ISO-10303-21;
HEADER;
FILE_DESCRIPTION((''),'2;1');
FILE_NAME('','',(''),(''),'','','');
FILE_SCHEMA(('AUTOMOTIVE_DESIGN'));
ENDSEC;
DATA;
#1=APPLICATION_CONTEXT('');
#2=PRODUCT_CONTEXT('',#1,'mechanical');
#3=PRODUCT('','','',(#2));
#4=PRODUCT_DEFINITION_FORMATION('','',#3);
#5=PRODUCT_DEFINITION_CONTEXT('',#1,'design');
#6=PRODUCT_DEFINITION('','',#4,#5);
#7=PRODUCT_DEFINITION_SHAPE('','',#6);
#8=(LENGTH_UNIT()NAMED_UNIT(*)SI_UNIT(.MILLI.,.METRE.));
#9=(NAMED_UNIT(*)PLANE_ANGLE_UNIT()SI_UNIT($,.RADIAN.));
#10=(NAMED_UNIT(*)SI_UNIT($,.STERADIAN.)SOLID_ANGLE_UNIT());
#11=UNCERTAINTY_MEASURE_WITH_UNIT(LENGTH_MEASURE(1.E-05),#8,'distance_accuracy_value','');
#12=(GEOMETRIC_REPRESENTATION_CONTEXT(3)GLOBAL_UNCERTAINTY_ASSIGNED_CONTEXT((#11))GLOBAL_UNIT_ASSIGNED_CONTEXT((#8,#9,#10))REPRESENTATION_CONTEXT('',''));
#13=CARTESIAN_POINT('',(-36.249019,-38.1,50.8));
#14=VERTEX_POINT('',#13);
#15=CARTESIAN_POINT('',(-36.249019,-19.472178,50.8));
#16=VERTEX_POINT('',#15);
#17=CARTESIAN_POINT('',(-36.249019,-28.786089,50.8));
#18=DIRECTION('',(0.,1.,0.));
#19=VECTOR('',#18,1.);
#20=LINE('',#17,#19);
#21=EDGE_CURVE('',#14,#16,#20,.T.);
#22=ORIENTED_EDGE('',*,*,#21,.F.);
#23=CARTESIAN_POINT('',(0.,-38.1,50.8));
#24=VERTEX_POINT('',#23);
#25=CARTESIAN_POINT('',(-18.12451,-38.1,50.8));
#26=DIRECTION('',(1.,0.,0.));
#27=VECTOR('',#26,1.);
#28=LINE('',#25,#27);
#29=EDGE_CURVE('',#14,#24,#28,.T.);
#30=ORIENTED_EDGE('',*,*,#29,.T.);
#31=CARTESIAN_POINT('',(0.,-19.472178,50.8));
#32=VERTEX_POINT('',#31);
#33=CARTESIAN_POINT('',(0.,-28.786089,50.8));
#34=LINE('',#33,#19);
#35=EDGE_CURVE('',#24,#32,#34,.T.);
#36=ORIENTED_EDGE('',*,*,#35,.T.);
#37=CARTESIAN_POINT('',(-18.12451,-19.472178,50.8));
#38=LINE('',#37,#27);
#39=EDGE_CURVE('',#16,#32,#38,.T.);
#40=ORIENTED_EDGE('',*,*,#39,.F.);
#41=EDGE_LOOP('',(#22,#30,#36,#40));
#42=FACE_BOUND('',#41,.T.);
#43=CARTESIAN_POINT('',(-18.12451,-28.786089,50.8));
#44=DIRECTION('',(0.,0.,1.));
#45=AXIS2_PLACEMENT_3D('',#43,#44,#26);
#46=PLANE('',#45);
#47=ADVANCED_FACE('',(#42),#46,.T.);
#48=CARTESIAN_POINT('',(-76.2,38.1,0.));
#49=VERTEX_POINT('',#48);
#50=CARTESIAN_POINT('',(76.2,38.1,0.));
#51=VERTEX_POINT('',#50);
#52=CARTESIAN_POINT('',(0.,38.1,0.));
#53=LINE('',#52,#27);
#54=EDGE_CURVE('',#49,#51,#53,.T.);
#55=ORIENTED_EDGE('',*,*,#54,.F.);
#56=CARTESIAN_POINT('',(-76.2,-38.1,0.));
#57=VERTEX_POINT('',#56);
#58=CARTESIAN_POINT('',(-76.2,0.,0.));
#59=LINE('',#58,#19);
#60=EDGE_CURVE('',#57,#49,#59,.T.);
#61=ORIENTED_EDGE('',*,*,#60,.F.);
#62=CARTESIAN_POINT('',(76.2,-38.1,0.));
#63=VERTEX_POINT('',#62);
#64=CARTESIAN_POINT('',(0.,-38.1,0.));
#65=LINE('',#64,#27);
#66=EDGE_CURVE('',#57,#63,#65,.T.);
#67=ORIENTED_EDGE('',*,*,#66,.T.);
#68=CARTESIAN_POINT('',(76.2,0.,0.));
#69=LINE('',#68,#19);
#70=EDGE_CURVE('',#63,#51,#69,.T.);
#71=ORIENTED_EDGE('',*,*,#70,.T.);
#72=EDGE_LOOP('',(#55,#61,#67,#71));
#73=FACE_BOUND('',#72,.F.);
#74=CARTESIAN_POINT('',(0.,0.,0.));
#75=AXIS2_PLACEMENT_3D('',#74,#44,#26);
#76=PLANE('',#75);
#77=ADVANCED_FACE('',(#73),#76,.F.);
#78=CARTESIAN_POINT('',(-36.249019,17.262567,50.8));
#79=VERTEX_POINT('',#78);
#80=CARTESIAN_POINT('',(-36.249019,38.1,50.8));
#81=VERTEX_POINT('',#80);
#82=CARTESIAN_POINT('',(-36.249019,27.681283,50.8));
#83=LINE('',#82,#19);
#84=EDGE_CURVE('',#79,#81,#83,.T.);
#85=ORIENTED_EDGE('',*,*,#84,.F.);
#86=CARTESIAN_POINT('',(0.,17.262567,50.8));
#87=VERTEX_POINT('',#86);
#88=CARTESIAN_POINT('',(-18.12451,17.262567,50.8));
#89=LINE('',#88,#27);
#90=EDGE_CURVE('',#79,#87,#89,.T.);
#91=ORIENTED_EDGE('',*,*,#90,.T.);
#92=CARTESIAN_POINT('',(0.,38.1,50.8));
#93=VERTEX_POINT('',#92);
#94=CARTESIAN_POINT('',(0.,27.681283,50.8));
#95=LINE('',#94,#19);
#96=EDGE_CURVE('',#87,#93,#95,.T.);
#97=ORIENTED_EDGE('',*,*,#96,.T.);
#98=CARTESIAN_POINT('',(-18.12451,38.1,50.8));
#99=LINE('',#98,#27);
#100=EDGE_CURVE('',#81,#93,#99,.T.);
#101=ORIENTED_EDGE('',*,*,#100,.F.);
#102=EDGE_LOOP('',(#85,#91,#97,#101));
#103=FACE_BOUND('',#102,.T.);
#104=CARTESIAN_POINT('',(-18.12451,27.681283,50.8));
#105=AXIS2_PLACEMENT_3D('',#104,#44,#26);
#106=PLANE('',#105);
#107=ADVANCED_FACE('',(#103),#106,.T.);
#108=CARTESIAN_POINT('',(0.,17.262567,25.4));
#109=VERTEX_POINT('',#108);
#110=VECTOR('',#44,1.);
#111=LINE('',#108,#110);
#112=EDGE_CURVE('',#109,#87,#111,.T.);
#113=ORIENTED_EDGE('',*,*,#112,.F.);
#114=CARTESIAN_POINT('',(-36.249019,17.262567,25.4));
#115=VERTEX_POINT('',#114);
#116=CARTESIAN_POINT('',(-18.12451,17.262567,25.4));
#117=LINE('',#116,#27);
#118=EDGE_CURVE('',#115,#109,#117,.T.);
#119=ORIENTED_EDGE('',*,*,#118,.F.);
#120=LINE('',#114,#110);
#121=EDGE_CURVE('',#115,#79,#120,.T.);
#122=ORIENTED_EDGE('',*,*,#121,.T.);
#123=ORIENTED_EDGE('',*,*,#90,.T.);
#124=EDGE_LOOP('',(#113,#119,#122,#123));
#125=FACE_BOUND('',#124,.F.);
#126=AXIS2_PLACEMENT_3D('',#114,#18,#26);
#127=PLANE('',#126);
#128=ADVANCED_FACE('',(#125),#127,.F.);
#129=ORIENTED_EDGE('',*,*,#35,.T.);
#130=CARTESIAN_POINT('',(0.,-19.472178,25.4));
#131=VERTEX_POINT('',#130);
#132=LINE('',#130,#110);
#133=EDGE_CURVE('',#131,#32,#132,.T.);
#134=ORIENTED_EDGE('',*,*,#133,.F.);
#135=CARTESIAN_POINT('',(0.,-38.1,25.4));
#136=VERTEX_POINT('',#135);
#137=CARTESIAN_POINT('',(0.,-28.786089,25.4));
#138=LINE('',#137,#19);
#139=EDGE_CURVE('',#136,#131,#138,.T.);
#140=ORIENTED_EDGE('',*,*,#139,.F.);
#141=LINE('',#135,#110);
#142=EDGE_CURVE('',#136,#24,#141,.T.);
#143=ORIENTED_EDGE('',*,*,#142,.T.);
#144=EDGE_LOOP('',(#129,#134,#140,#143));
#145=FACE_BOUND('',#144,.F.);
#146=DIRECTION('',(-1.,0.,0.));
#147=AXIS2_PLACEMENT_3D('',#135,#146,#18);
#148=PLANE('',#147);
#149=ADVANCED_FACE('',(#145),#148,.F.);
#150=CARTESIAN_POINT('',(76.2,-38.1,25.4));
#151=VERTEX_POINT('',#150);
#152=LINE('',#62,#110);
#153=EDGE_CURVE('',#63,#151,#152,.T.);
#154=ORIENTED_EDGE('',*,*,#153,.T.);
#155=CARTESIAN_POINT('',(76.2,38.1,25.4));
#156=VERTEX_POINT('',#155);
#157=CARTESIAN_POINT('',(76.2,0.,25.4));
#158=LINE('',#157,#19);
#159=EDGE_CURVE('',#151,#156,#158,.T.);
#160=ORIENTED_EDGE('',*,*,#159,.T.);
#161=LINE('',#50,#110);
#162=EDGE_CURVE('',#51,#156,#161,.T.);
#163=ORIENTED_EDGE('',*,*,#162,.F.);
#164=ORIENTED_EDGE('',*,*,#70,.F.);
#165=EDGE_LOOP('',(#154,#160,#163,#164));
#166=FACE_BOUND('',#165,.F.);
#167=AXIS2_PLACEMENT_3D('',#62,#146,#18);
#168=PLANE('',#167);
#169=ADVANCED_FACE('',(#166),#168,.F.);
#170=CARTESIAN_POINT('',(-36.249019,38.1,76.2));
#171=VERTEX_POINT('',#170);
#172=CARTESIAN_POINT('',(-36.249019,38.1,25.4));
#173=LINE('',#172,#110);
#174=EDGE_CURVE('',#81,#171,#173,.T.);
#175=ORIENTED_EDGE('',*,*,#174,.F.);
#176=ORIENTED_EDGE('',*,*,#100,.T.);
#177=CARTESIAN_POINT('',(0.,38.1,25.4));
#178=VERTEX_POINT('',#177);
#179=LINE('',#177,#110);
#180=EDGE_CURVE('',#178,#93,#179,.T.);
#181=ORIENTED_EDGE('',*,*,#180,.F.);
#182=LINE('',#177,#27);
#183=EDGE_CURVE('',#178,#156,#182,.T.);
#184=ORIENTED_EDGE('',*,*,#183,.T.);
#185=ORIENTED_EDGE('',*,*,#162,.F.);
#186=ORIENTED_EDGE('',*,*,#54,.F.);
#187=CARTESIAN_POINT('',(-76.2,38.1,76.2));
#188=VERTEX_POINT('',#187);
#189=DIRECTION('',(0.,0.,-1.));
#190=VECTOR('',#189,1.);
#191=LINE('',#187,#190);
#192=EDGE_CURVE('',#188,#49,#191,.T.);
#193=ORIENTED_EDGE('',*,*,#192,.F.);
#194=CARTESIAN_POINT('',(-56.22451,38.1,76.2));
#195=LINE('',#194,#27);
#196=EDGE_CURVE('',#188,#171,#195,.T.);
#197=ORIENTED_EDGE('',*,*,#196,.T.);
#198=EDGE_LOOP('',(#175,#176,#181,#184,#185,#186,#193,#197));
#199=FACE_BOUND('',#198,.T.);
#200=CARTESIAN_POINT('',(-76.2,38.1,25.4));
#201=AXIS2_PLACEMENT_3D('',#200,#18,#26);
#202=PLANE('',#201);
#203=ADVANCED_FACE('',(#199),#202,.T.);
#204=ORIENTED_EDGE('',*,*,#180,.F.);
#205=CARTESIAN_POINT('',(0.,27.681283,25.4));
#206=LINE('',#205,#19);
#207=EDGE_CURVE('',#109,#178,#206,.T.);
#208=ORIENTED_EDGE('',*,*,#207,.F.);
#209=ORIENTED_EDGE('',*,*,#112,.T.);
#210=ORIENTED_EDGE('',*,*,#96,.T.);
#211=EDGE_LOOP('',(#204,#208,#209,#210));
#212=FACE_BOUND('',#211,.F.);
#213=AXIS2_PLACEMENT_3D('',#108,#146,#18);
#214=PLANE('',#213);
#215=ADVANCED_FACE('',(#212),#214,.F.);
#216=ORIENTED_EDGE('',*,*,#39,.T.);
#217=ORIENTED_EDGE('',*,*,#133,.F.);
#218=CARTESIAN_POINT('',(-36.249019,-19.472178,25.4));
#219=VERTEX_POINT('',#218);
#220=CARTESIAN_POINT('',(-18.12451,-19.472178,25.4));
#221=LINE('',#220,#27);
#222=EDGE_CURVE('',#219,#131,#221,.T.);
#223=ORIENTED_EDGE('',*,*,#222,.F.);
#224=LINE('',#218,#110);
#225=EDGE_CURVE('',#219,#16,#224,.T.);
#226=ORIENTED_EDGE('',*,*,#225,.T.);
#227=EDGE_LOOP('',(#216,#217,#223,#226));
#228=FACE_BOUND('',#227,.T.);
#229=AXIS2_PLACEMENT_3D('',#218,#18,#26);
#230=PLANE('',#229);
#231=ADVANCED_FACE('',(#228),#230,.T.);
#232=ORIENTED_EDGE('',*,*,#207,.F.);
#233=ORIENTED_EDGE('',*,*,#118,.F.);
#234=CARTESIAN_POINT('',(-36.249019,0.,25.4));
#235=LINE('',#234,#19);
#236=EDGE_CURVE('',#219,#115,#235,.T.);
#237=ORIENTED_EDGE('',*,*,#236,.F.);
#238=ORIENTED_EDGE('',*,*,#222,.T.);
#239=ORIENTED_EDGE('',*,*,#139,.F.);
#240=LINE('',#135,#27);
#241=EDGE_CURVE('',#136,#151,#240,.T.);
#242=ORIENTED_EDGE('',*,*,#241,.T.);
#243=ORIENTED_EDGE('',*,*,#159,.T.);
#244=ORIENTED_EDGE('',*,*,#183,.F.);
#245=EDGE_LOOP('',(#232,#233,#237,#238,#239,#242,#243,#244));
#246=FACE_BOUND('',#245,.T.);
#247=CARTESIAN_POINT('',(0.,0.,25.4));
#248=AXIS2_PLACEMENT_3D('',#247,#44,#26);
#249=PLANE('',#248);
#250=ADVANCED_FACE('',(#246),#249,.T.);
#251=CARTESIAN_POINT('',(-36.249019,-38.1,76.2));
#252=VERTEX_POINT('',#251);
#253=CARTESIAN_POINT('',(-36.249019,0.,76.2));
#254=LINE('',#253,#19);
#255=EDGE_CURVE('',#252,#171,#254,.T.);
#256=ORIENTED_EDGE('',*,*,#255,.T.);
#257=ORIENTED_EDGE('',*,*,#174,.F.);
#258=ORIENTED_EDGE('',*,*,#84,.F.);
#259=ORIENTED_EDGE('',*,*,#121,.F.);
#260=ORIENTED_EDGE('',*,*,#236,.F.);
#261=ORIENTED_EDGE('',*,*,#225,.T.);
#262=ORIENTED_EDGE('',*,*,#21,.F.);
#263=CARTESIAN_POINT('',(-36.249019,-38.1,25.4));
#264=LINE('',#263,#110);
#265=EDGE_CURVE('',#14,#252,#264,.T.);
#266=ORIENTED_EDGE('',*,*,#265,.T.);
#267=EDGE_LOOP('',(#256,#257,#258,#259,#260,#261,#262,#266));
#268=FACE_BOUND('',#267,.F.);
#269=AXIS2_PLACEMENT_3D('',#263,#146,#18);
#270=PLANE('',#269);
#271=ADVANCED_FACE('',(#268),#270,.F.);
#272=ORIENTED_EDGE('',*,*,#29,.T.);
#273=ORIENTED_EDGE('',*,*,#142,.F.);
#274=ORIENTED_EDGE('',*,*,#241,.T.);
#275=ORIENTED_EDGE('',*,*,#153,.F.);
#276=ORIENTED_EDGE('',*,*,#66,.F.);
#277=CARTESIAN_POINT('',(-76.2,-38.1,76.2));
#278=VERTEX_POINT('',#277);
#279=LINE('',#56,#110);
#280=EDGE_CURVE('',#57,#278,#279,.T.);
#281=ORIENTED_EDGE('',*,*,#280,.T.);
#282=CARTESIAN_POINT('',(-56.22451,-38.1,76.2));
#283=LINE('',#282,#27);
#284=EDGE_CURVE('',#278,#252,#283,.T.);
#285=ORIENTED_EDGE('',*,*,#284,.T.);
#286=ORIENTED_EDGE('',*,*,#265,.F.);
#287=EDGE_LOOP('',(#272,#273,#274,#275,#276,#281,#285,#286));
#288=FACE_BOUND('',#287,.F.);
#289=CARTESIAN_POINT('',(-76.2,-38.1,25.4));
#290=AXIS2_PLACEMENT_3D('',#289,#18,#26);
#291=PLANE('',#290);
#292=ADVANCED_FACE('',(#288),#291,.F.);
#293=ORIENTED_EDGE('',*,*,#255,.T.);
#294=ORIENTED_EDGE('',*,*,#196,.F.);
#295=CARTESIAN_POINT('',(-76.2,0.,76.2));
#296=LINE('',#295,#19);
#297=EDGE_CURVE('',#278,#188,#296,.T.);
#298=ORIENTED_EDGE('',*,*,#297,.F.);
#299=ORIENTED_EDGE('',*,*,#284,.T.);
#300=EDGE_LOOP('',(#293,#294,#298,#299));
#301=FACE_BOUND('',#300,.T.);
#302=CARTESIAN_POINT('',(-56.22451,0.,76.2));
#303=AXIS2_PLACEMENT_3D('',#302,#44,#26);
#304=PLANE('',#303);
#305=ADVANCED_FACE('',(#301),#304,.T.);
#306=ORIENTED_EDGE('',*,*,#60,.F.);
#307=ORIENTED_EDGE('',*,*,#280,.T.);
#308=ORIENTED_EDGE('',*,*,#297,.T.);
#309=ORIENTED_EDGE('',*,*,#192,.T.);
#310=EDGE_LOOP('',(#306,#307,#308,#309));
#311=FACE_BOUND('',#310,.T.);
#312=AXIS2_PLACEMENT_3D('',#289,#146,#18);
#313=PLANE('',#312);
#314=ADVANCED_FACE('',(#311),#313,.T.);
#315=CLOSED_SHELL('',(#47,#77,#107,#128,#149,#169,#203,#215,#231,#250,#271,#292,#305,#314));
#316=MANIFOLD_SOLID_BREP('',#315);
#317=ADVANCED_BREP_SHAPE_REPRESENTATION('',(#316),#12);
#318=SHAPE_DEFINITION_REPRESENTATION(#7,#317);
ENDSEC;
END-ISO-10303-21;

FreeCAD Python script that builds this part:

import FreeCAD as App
import Part
import Sketcher
Q = App.Units.Quantity


def add_polygon(sketch, points):
    """Adds a closed chain of lines whose ends are joined by coincident constraints."""
    first, n = sketch.GeometryCount, len(points)
    for a, b in zip(points, points[1:] + points[:1]):
        sketch.addGeometry(Part.LineSegment(App.Vector(*a, 0), App.Vector(*b, 0)), False)
    for i in range(n):
        sketch.addConstraint(Sketcher.Constraint("Coincident", first + i, 2, first + (i + 1) % n, 1))

doc = App.newDocument("Part")
params = doc.addObject("Spreadsheet::Sheet", "Params")
for row, (alias, value) in enumerate([
    ("sketch1_width", "6 in"),
    ("sketch1_height", "3 in"),
    ("pad1_length", "1 in"),
    ("sketch2_height", "3 in"),
    ("pad2_length", "2 in"),
    ("pad3_length", "1 in"),
], start=1):
    params.set(f"A{row}", alias)
    params.set(f"B{row}", "=" + value)
    params.setAlias(f"B{row}", alias)

body = doc.addObject("PartDesign::Body", "Body")

# Sketch on XY plane
sketch1 = body.newObject("Sketcher::SketchObject", "Sketch")
sketch1.AttachmentSupport = (doc.getObject("XY_Plane"), [""])
sketch1.MapMode = "FlatFace"
add_polygon(sketch1, [(-76, 38), (-76, -38), (76, -38), (76, 38)])  # lines 0-3
sketch1.addConstraint([
    Sketcher.Constraint("Vertical", 0),
    Sketcher.Constraint("Horizontal", 1),
    Sketcher.Constraint("Vertical", 2),
    Sketcher.Constraint("Horizontal", 3),
    Sketcher.Constraint("Symmetric", 0, 2, 2, 2, -1, 1),
    Sketcher.Constraint("DistanceX", 1, 1, 1, 2, Q("6 in")),
    Sketcher.Constraint("DistanceY", 0, 2, 0, 1, Q("3 in")),
])
sketch1.setExpression("Constraints[9]", "Params.sketch1_width")
sketch1.setExpression("Constraints[10]", "Params.sketch1_height")
pad1 = body.newObject("PartDesign::Pad", "Pad")
pad1.Profile = sketch1
pad1.setExpression("Length", "Params.pad1_length")

# Sketch on XY plane
sketch2 = body.newObject("Sketcher::SketchObject", "Sketch001")
sketch2.AttachmentSupport = (doc.getObject("XY_Plane"), [""])
sketch2.MapMode = "FlatFace"
sketch2.AttachmentOffset = App.Placement(App.Vector(0, 0, 1 * 25.4), App.Rotation())
add_polygon(sketch2, [(-76, 38), (-76, -38), (-36, -38), (-36, 38)])  # lines 0-3
sketch2.addConstraint([
    Sketcher.Constraint("Vertical", 0),
    Sketcher.Constraint("Horizontal", 1),
    Sketcher.Constraint("Vertical", 2),
    Sketcher.Constraint("Horizontal", 3),
    Sketcher.Constraint("DistanceY", 0, 2, 0, 1, Q("3 in")),
    Sketcher.Constraint("DistanceX", 0, 2, -1, 1, Q("3 in")),
    Sketcher.Constraint("DistanceY", 0, 2, -1, 1, Q("1.5 in")),
    Sketcher.Constraint("DistanceX", 1, 1, 1, 2, 39.950981),
])
sketch2.setExpression("Constraints[8]", "Params.sketch2_height")
pad2 = body.newObject("PartDesign::Pad", "Pad001")
pad2.Profile = sketch2
pad2.setExpression("Length", "Params.pad2_length")

# Sketch on XY plane
sketch3 = body.newObject("Sketcher::SketchObject", "Sketch002")
sketch3.AttachmentSupport = (doc.getObject("XY_Plane"), [""])
sketch3.MapMode = "FlatFace"
sketch3.AttachmentOffset = App.Placement(App.Vector(0, 0, 1 * 25.4), App.Rotation())
add_polygon(sketch3, [(-36, 38), (-36, 17), (0, 17), (0, 38)])  # lines 0-3
add_polygon(sketch3, [(-36, -19), (-36, -38), (0, -38), (0, -19)])  # lines 4-7
sketch3.addConstraint([
    Sketcher.Constraint("Vertical", 0),
    Sketcher.Constraint("Horizontal", 1),
    Sketcher.Constraint("Vertical", 2),
    Sketcher.Constraint("Horizontal", 3),
    Sketcher.Constraint("Vertical", 4),
    Sketcher.Constraint("Horizontal", 5),
    Sketcher.Constraint("Vertical", 6),
    Sketcher.Constraint("Horizontal", 7),
    Sketcher.Constraint("Symmetric", 2, 2, 5, 2, -1, 1),
    Sketcher.Constraint("PointOnObject", 1, 2, -2),
    Sketcher.Constraint("Vertical", 3, 2, 4, 2),
    Sketcher.Constraint("DistanceY", 4, 2, 3, 2, Q("3 in")),
    Sketcher.Constraint("DistanceX", 1, 1, 1, 2, 36.249019),
    Sketcher.Constraint("DistanceY", 4, 2, 4, 1, 18.627822),
    Sketcher.Constraint("DistanceY", 0, 2, 0, 1, 20.837433),
])
pad3 = body.newObject("PartDesign::Pad", "Pad002")
pad3.Profile = sketch3
pad3.setExpression("Length", "Params.pad3_length")

doc.recompute()
